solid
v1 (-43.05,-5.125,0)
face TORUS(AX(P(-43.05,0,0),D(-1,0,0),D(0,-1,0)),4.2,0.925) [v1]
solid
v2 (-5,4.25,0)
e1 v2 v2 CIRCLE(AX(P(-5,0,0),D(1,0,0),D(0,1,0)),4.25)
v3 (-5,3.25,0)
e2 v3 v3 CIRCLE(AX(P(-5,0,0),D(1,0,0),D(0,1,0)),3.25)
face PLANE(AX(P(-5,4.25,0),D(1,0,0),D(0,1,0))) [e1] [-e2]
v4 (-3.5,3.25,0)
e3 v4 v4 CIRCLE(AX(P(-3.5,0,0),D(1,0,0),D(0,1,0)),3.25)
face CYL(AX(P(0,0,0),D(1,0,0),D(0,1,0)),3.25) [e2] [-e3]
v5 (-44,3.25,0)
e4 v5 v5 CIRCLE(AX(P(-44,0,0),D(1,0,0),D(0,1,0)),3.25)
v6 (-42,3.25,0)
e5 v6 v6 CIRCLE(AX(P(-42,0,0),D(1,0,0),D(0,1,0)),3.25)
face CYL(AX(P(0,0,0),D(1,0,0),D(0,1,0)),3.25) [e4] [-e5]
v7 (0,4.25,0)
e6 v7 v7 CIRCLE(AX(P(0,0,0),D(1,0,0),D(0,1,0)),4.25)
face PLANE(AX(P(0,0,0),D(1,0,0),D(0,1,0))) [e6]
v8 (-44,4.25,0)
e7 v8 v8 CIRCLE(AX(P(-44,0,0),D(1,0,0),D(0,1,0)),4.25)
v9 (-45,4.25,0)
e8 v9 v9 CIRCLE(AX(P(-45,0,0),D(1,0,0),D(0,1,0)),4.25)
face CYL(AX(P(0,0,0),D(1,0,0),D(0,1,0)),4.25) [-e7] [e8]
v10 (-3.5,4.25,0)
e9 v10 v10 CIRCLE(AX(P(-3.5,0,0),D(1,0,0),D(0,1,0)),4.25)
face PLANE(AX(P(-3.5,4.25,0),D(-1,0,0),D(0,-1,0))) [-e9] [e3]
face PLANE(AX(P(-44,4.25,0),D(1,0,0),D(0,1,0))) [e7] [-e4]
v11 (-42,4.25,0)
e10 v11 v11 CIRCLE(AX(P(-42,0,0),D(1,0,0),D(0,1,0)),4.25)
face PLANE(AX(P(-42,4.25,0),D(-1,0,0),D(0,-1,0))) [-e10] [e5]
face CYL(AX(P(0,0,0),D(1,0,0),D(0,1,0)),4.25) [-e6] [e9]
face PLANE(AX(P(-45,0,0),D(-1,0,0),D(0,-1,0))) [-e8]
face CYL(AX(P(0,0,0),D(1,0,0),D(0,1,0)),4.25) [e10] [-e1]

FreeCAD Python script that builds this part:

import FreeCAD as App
import Part
import Sketcher

V = App.Vector

doc = App.newDocument("Part")
body = doc.addObject("PartDesign::Body", "Body")

# Sketch on XY plane
sketch1 = body.newObject("Sketcher::SketchObject", "Sketch")
sketch1.AttachmentSupport = (doc.getObject("XY_Plane"), [""])
sketch1.MapMode = "FlatFace"
sketch1.addGeometry([
    Part.LineSegment(V(-44, 4.25, 0), V(-45, 4.25, 0)),  # 0
    Part.LineSegment(V(-45, 4.25, 0), V(-45, 0, 0)),  # 1
    Part.LineSegment(V(-45, 0, 0), V(0, 0, 0)),  # 2
    Part.LineSegment(V(0, 0, 0), V(0, 4.25, 0)),  # 3
    Part.LineSegment(V(0, 4.25, 0), V(-3.5, 4.25, 0)),  # 4
    Part.LineSegment(V(-3.5, 4.25, 0), V(-3.5, 3.25, 0)),  # 5
    Part.LineSegment(V(-3.5, 3.25, 0), V(-5, 3.25, 0)),  # 6
    Part.LineSegment(V(-5, 3.25, 0), V(-5, 4.25, 0)),  # 7
    Part.LineSegment(V(-5, 4.25, 0), V(-42, 4.25, 0)),  # 8
    Part.LineSegment(V(-42, 4.25, 0), V(-42, 3.25, 0)),  # 9
    Part.LineSegment(V(-42, 3.25, 0), V(-44, 3.25, 0)),  # 10
    Part.LineSegment(V(-44, 3.25, 0), V(-44, 4.25, 0)),  # 11
], False)
sketch1.addConstraint([
    Sketcher.Constraint("Coincident", 0, 2, 1, 1),
    Sketcher.Constraint("Coincident", 1, 2, 2, 1),
    Sketcher.Constraint("Coincident", 2, 2, 3, 1),
    Sketcher.Constraint("Coincident", 3, 2, 4, 1),
    Sketcher.Constraint("Coincident", 4, 2, 5, 1),
    Sketcher.Constraint("Coincident", 5, 2, 6, 1),
    Sketcher.Constraint("Coincident", 6, 2, 7, 1),
    Sketcher.Constraint("Coincident", 7, 2, 8, 1),
    Sketcher.Constraint("Coincident", 8, 2, 9, 1),
    Sketcher.Constraint("Coincident", 9, 2, 10, 1),
    Sketcher.Constraint("Coincident", 10, 2, 11, 1),
    Sketcher.Constraint("Coincident", 11, 2, 0, 1),
    Sketcher.Constraint("Horizontal", 0),
    Sketcher.Constraint("Vertical", 1),
    Sketcher.Constraint("Horizontal", 2),
    Sketcher.Constraint("Vertical", 3),
    Sketcher.Constraint("Horizontal", 4),
    Sketcher.Constraint("Vertical", 5),
    Sketcher.Constraint("Horizontal", 6),
    Sketcher.Constraint("Vertical", 7),
    Sketcher.Constraint("Horizontal", 8),
    Sketcher.Constraint("Vertical", 9),
    Sketcher.Constraint("Horizontal", 10),
    Sketcher.Constraint("Vertical", 11),
    Sketcher.Constraint("Coincident", 2, 2, -1, 1),
    Sketcher.Constraint("Horizontal", 0, 2, 3, 2),
    Sketcher.Constraint("Horizontal", 4, 2, 7, 2),
    Sketcher.Constraint("Horizontal", 6, 2, 9, 2),
    Sketcher.Constraint("Equal", 0, 5),
    Sketcher.Constraint("DistanceX", 0, 2, 0, 1, 1.0),
    Sketcher.Constraint("DistanceX", 2, 1, 2, 2, 45.0),
    Sketcher.Constraint("DistanceX", 8, 2, 8, 1, 37.0),
    Sketcher.Constraint("DistanceX", 10, 2, 10, 1, 2.0),
    Sketcher.Constraint("DistanceX", 4, 2, 4, 1, 3.5),
    Sketcher.Constraint("DistanceY", 1, 2, 1, 1, 4.25),
])
revolution = body.newObject("PartDesign::Revolution", "Revolution")
revolution.Profile = sketch1
revolution.ReferenceAxis = (sketch1, ["H_Axis"])
revolution.Angle = 360
body2 = doc.addObject("PartDesign::Body", "Body001")

# Sketch on XY plane
sketch2 = body2.newObject("Sketcher::SketchObject", "Sketch001")
sketch2.AttachmentSupport = (doc.getObject("XY_Plane001"), [""])
sketch2.MapMode = "FlatFace"
sketch2.addGeometry(Part.Circle(V(-43.05, 4.2, 0), V(0, 0, 1), 0.925), False)
sketch2.addConstraint([
    Sketcher.Constraint("Diameter", 0, 1.85),
    Sketcher.Constraint("DistanceY", -1, 1, 0, 3, 4.2),
    Sketcher.Constraint("DistanceX", 0, 3, -1, 1, 43.05),
])
revolution2 = body2.newObject("PartDesign::Revolution", "Revolution001")
revolution2.Profile = sketch2
revolution2.ReferenceAxis = (sketch2, ["H_Axis"])
revolution2.Angle = 360

doc.recompute()
